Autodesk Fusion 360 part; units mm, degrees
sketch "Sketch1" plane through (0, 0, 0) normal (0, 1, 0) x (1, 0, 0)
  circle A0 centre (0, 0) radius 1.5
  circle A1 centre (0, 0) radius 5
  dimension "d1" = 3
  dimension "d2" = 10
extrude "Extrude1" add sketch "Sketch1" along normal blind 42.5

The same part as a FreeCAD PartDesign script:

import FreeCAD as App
import Part
import Sketcher
from FreeCAD import Vector

doc = App.newDocument("Part")
body = doc.addObject("PartDesign::Body", "Body")

sketch1 = body.newObject("Sketcher::SketchObject", "Sketch")
sketch1.AttachmentSupport = (doc.getObject("XZ_Plane"), [""])
sketch1.MapMode = "FlatFace"
sketch1.addGeometry(Part.Circle(Vector(0, 0, 0), Vector(0, 0, 1), 5), False)
sketch1.addGeometry(Part.Circle(Vector(0, 0, 0), Vector(0, 0, 1), 1.5), False)
sketch1.addConstraint(Sketcher.Constraint("Coincident", 0, 3, -1, 1))
sketch1.addConstraint(Sketcher.Constraint("Coincident", 1, 3, -1, 1))
sketch1.addConstraint(Sketcher.Constraint("Diameter", 0, 10.0))
sketch1.addConstraint(Sketcher.Constraint("Diameter", 1, 3.0))
pad1 = body.newObject("PartDesign::Pad", "Pad")
pad1.Profile = sketch1
pad1.Length = 42.5
pad1.Reversed = True

doc.recompute()
